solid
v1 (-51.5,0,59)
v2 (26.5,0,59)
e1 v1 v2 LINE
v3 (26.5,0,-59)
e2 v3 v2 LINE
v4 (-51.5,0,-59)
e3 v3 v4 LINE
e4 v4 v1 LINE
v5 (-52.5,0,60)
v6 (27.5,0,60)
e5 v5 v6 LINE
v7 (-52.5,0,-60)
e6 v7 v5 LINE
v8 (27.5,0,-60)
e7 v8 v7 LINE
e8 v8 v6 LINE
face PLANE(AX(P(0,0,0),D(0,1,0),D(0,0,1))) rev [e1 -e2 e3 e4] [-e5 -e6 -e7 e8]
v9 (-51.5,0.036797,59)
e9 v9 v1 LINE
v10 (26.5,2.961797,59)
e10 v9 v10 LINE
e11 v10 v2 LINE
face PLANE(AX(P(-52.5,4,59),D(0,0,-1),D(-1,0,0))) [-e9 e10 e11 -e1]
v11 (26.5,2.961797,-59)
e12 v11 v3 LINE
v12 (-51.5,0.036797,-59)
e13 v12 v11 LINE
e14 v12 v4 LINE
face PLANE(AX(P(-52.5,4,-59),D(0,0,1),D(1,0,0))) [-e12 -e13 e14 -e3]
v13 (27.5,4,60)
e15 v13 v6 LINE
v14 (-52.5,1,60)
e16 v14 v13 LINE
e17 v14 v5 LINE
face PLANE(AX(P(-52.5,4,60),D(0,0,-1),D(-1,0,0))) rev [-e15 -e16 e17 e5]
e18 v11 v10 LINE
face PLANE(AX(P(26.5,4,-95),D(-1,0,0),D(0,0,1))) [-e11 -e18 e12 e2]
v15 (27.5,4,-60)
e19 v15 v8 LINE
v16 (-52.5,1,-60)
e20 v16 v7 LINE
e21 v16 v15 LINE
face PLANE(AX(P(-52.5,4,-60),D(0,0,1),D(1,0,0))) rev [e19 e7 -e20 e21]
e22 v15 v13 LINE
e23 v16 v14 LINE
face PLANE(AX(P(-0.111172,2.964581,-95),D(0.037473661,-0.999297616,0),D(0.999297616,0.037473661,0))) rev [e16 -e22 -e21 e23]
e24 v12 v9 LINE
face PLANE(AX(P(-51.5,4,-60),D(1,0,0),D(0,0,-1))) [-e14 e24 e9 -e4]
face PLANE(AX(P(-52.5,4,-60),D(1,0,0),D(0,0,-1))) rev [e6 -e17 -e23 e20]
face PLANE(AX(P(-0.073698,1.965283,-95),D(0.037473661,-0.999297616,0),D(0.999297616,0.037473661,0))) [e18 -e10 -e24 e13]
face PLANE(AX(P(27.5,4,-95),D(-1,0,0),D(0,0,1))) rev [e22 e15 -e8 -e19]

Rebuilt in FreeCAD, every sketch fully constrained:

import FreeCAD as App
import Part
import Sketcher
Q = App.Units.Quantity


def faces_at(feature, points):
    """Names of the faces that lie closest to the given points."""
    faces = feature.Shape.Faces
    near = lambda p: min(range(len(faces)), key=lambda i: faces[i].distToShape(Part.Vertex(*p))[0])
    return sorted({f"Face{near(p) + 1}" for p in points})


def add_polygon(sketch, points):
    """Adds a closed chain of lines whose ends are joined by coincident constraints."""
    first, n = sketch.GeometryCount, len(points)
    for a, b in zip(points, points[1:] + points[:1]):
        sketch.addGeometry(Part.LineSegment(App.Vector(*a, 0), App.Vector(*b, 0)), False)
    for i in range(n):
        sketch.addConstraint(Sketcher.Constraint("Coincident", first + i, 2, first + (i + 1) % n, 1))

doc = App.newDocument("Part")
body = doc.addObject("PartDesign::Body", "Body")

sketch1 = doc.addObject("Sketcher::SketchObject", "Sketch")
body.addObject(sketch1)
sketch1.AttachmentSupport = (doc.XZ_Plane, [""])
sketch1.MapMode = "FlatFace"
add_polygon(sketch1, [(-52.5, -60), (-52.5, 60), (52.5, 60), (52.5, -60)])
sketch1.addConstraint([
    Sketcher.Constraint("Vertical", 0),
    Sketcher.Constraint("Horizontal", 1),
    Sketcher.Constraint("Vertical", 2),
    Sketcher.Constraint("Horizontal", 3),
    Sketcher.Constraint("Symmetric", 0, 2, 2, 2, -1, 1),
    Sketcher.Constraint("DistanceX", 1, 1, 1, 2, Q("105 mm")),
    Sketcher.Constraint("DistanceY", 0, 1, 0, 2, Q("120 mm")),
])
pad1 = doc.addObject("PartDesign::Pad", "Pad")
body.addObject(pad1)
pad1.Profile = sketch1
pad1.Length = 4
pad1.Reversed = True

sketch2 = doc.addObject("Sketcher::SketchObject", "Sketch001")
body.addObject(sketch2)
sketch2.AttachmentSupport = (doc.XY_Plane, [""])
sketch2.MapMode = "FlatFace"
sketch2.AttachmentOffset = App.Placement(App.Vector(0, 0, 60), App.Rotation())
add_polygon(sketch2, [(27.5, 4), (27.5, 0), (52.5, 0), (52.5, 4)])
sketch2.addConstraint([
    Sketcher.Constraint("Vertical", 0),
    Sketcher.Constraint("Horizontal", 1),
    Sketcher.Constraint("Vertical", 2),
    Sketcher.Constraint("Horizontal", 3),
    Sketcher.Constraint("PointOnObject", 0, 2, -1),
    Sketcher.Constraint("DistanceX", 1, 1, 1, 2, Q("25 mm")),
    Sketcher.Constraint("DistanceY", 0, 2, 0, 1, Q("4 mm")),
    Sketcher.Constraint("DistanceX", -1, 1, 0, 2, Q("27.5 mm")),
])
pocket1 = doc.addObject("PartDesign::Pocket", "Pocket")
body.addObject(pocket1)
pocket1.Profile = sketch2
pocket1.Length = 155

sketch3 = doc.addObject("Sketcher::SketchObject", "Sketch002")
body.addObject(sketch3)
sketch3.AttachmentSupport = (doc.XY_Plane, [""])
sketch3.MapMode = "FlatFace"
sketch3.AttachmentOffset = App.Placement(App.Vector(0, 0, 60), App.Rotation())
add_polygon(sketch3, [(-52.5, 4), (-52.5, 1), (27.5, 4)])
sketch3.addConstraint([
    Sketcher.Constraint("Vertical", 0),
    Sketcher.Constraint("Horizontal", 2),
    Sketcher.Constraint("DistanceX", 2, 2, 2, 1, Q("80 mm")),
    Sketcher.Constraint("DistanceY", 0, 2, 0, 1, Q("3 mm")),
    Sketcher.Constraint("DistanceY", -1, 1, 0, 2, Q("1 mm")),
    Sketcher.Constraint("DistanceX", 0, 2, -1, 1, Q("52.5 mm")),
])
pocket2 = doc.addObject("PartDesign::Pocket", "Pocket001")
body.addObject(pocket2)
pocket2.Profile = sketch3
pocket2.Length = 155
doc.recompute()

thickness = doc.addObject("PartDesign::Thickness", "Thickness")
body.addObject(thickness)
thickness.Base = (pocket2, faces_at(pocket2, [(-12.5, 0, 0)]))
thickness.Value = 1
thickness.Reversed = True
thickness.Join = "Intersection"

doc.recompute()
